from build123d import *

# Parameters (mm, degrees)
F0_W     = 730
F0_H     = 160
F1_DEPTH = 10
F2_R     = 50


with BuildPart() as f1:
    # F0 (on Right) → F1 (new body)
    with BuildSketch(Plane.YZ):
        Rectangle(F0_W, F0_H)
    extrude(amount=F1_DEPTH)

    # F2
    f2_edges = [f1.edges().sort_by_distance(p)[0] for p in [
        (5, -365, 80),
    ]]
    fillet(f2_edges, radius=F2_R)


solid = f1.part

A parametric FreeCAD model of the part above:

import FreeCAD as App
import Part
import Sketcher
from FreeCAD import Vector


def edges_at(feature, points):
    """Names of the edges that pass closest to the given points."""
    edges = feature.Shape.Edges
    near = lambda p: min(range(len(edges)), key=lambda i: edges[i].distToShape(Part.Vertex(*p))[0])
    return sorted({f"Edge{near(p) + 1}" for p in points})


def add_polygon(sketch, points):
    """Adds a closed chain of lines whose ends are joined by coincident constraints."""
    first, n = sketch.GeometryCount, len(points)
    for a, b in zip(points, points[1:] + points[:1]):
        sketch.addGeometry(Part.LineSegment(App.Vector(*a, 0), App.Vector(*b, 0)), False)
    for i in range(n):
        sketch.addConstraint(Sketcher.Constraint("Coincident", first + i, 2, first + (i + 1) % n, 1))

doc = App.newDocument("Part")
params = doc.addObject("Spreadsheet::Sheet", "Params")
for row, (alias, value) in enumerate([
    ("sketch1_width", "730 mm"),
    ("sketch1_height", "160 mm"),
    ("pad1_length", "10 mm"),
    ("fillet_radius", "50 mm"),
], start=1):
    params.set(f"A{row}", alias)
    params.set(f"B{row}", "=" + value)
    params.setAlias(f"B{row}", alias)

body = doc.addObject("PartDesign::Body", "Body")

# Sketch on YZ plane
sketch1 = doc.addObject("Sketcher::SketchObject", "Sketch")
body.addObject(sketch1)
sketch1.AttachmentSupport = (doc.YZ_Plane, [""])
sketch1.MapMode = "FlatFace"
add_polygon(sketch1, [(-365, 80), (-365, -80), (365, -80), (365, 80)])  # lines 0-3
sketch1.addConstraint(Sketcher.Constraint("Vertical", 0))
sketch1.addConstraint(Sketcher.Constraint("Horizontal", 1))
sketch1.addConstraint(Sketcher.Constraint("Vertical", 2))
sketch1.addConstraint(Sketcher.Constraint("Horizontal", 3))
sketch1.addConstraint(Sketcher.Constraint("Symmetric", 0, 2, 2, 2, -1, 1))
sketch1.addConstraint(Sketcher.Constraint("DistanceX", 1, 1, 1, 2, 730.0))
sketch1.addConstraint(Sketcher.Constraint("DistanceY", 0, 2, 0, 1, 160.0))
sketch1.setExpression("Constraints[9]", "Params.sketch1_width")
sketch1.setExpression("Constraints[10]", "Params.sketch1_height")
pad1 = doc.addObject("PartDesign::Pad", "Pad")
body.addObject(pad1)
pad1.Profile = sketch1
pad1.setExpression("Length", "Params.pad1_length")
doc.recompute()

fillet = doc.addObject("PartDesign::Fillet", "Fillet")
body.addObject(fillet)
fillet.Base = (pad1, edges_at(pad1, [(5, -365, 80)]))
fillet.setExpression("Radius", "Params.fillet_radius")

doc.recompute()
